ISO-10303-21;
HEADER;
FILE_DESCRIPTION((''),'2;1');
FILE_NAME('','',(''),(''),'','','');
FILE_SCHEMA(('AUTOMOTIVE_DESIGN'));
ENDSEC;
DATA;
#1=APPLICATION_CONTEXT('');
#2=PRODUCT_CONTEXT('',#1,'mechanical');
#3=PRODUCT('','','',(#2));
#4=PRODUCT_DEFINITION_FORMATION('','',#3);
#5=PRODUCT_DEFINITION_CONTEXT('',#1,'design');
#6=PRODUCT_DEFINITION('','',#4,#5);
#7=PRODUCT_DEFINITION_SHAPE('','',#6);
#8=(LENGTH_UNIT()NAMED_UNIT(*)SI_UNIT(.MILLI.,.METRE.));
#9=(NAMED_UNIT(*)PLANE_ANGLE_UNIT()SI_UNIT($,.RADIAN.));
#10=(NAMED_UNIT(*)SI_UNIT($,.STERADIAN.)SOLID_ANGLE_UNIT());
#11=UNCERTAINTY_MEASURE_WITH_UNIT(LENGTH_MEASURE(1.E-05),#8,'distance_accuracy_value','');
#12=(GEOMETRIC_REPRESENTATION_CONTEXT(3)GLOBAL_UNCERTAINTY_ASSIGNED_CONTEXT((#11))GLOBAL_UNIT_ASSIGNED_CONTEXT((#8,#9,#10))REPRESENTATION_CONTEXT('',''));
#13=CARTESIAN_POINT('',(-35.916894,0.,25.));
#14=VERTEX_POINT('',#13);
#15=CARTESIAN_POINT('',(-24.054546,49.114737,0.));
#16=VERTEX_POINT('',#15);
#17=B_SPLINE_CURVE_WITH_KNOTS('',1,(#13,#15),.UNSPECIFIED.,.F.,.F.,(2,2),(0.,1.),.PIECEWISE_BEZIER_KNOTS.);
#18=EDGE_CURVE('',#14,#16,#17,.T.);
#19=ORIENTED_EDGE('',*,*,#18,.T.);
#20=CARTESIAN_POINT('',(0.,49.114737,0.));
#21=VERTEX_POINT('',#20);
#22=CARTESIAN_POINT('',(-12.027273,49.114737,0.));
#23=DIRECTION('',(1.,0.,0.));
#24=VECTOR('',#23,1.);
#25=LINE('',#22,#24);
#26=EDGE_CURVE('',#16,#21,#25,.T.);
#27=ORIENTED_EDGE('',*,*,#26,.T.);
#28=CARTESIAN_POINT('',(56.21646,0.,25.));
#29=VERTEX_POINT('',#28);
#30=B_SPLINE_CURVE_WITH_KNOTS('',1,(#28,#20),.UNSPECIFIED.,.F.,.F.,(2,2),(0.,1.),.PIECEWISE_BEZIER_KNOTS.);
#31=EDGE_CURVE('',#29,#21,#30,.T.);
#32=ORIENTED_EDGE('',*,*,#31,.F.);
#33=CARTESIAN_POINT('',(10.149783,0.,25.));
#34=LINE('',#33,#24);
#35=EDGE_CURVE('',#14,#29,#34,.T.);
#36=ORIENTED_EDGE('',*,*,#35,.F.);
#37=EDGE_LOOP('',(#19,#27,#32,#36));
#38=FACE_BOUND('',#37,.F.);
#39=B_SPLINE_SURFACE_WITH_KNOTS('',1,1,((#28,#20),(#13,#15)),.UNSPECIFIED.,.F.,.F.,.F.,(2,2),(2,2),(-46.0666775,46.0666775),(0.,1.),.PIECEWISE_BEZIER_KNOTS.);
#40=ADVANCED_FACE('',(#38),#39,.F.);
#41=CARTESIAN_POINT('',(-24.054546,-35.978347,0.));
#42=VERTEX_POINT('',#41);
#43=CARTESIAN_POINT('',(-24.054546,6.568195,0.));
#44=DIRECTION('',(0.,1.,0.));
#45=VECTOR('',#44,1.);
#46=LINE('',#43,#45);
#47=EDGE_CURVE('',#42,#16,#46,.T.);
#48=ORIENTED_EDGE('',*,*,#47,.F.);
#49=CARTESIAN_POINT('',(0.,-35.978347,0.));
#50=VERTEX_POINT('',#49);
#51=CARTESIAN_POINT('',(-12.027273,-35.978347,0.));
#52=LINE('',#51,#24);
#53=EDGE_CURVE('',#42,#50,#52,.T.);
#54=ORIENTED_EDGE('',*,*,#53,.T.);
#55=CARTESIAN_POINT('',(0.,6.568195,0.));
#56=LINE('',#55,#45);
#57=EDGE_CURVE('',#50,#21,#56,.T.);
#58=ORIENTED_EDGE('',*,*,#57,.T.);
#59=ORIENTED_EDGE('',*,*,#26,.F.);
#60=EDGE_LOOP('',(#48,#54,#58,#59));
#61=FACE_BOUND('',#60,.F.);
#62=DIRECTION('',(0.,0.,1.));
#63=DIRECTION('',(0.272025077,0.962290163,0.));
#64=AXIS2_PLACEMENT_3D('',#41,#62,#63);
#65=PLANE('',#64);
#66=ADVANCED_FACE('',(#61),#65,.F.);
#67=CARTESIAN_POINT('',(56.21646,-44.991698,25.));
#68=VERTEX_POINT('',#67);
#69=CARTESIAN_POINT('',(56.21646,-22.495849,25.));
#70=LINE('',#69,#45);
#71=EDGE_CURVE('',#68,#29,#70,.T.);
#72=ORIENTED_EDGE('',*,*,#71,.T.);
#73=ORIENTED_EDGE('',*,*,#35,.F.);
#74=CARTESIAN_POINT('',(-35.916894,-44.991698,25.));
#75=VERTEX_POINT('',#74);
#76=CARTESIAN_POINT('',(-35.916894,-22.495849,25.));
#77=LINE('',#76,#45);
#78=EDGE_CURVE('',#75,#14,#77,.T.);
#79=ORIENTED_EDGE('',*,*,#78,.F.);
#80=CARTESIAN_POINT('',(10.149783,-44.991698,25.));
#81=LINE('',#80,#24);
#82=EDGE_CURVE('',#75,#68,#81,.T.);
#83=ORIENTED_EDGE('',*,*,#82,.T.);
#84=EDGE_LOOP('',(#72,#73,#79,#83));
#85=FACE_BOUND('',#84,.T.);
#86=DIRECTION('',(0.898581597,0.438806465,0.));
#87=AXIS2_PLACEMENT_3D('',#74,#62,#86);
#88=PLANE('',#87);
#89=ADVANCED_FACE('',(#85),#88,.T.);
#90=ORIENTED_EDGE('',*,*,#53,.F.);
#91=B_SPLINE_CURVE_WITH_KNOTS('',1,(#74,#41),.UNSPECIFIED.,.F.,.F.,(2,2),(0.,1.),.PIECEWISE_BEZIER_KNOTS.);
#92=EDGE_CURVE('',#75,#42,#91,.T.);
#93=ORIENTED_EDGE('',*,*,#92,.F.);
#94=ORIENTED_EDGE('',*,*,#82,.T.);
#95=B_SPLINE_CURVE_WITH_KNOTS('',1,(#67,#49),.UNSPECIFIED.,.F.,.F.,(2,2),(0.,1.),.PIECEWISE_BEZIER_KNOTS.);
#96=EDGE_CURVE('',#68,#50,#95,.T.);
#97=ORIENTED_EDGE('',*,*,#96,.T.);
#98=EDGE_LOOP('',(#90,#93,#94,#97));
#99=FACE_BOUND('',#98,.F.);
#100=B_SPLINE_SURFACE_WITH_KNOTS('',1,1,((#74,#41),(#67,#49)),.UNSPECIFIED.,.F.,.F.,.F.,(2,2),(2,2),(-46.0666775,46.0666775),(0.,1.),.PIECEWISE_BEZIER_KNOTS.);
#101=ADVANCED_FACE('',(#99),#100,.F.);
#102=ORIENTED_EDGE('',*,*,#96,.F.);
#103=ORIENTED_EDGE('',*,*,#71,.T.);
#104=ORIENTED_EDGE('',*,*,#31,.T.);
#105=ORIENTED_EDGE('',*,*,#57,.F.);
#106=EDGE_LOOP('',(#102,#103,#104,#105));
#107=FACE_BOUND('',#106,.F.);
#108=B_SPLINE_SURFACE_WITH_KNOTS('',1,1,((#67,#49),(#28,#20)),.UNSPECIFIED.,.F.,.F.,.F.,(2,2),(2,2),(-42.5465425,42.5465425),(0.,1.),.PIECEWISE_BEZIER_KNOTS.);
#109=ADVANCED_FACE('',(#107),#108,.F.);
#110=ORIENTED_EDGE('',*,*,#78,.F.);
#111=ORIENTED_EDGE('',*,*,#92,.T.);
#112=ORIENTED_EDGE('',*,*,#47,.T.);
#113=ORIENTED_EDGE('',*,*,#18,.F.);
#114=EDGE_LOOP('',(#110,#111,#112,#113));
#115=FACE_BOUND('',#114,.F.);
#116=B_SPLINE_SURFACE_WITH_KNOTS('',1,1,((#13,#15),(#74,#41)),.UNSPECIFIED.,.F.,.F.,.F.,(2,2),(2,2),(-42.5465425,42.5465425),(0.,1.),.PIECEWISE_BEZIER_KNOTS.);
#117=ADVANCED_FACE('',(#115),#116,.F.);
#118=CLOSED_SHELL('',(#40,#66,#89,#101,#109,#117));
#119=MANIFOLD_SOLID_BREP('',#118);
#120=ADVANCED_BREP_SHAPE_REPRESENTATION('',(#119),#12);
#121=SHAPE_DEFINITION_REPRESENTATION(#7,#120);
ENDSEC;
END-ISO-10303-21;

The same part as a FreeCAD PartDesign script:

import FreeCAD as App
import Part
import Sketcher


def add_polygon(sketch, points):
    """Adds a closed chain of lines whose ends are joined by coincident constraints."""
    first, n = sketch.GeometryCount, len(points)
    for a, b in zip(points, points[1:] + points[:1]):
        sketch.addGeometry(Part.LineSegment(App.Vector(*a, 0), App.Vector(*b, 0)), False)
    for i in range(n):
        sketch.addConstraint(Sketcher.Constraint("Coincident", first + i, 2, first + (i + 1) % n, 1))

doc = App.newDocument("Part")
body = doc.addObject("PartDesign::Body", "Body")

sketch1 = doc.addObject("Sketcher::SketchObject", "Sketch")
body.addObject(sketch1)
sketch1.AttachmentSupport = (doc.XY_Plane, [""])
sketch1.MapMode = "FlatFace"
sketch1.AttachmentOffset = App.Placement(App.Vector(0, 0, 25), App.Rotation())
add_polygon(sketch1, [(-36, 0), (-36, -45), (56, -45), (56, 0)])
sketch1.addConstraint([
    Sketcher.Constraint("Vertical", 0),
    Sketcher.Constraint("Horizontal", 1),
    Sketcher.Constraint("Vertical", 2),
    Sketcher.Constraint("Horizontal", 3),
    Sketcher.Constraint("PointOnObject", 2, 2, -1),
    Sketcher.Constraint("DistanceX", 1, 1, 1, 2, 92.133355),
    Sketcher.Constraint("DistanceY", 0, 2, 0, 1, 44.991698),
    Sketcher.Constraint("DistanceX", -1, 1, 1, 2, 56.21646),
])

sketch2 = doc.addObject("Sketcher::SketchObject", "Sketch001")
body.addObject(sketch2)
sketch2.AttachmentSupport = (doc.XY_Plane, [""])
sketch2.MapMode = "FlatFace"
add_polygon(sketch2, [(-24, 49), (-24, -36), (0, -36), (0, 49)])
sketch2.addConstraint([
    Sketcher.Constraint("Vertical", 0),
    Sketcher.Constraint("Horizontal", 1),
    Sketcher.Constraint("Vertical", 2),
    Sketcher.Constraint("Horizontal", 3),
    Sketcher.Constraint("PointOnObject", 1, 2, -2),
    Sketcher.Constraint("DistanceX", 1, 1, 1, 2, 24.054546),
    Sketcher.Constraint("DistanceY", 0, 2, 0, 1, 85.093085),
    Sketcher.Constraint("DistanceY", 0, 2, -1, 1, 35.978347),
])

additiveloft = doc.addObject("PartDesign::AdditiveLoft", "AdditiveLoft")
body.addObject(additiveloft)
additiveloft.Profile = sketch1
additiveloft.Sections = [sketch2]

doc.recompute()
